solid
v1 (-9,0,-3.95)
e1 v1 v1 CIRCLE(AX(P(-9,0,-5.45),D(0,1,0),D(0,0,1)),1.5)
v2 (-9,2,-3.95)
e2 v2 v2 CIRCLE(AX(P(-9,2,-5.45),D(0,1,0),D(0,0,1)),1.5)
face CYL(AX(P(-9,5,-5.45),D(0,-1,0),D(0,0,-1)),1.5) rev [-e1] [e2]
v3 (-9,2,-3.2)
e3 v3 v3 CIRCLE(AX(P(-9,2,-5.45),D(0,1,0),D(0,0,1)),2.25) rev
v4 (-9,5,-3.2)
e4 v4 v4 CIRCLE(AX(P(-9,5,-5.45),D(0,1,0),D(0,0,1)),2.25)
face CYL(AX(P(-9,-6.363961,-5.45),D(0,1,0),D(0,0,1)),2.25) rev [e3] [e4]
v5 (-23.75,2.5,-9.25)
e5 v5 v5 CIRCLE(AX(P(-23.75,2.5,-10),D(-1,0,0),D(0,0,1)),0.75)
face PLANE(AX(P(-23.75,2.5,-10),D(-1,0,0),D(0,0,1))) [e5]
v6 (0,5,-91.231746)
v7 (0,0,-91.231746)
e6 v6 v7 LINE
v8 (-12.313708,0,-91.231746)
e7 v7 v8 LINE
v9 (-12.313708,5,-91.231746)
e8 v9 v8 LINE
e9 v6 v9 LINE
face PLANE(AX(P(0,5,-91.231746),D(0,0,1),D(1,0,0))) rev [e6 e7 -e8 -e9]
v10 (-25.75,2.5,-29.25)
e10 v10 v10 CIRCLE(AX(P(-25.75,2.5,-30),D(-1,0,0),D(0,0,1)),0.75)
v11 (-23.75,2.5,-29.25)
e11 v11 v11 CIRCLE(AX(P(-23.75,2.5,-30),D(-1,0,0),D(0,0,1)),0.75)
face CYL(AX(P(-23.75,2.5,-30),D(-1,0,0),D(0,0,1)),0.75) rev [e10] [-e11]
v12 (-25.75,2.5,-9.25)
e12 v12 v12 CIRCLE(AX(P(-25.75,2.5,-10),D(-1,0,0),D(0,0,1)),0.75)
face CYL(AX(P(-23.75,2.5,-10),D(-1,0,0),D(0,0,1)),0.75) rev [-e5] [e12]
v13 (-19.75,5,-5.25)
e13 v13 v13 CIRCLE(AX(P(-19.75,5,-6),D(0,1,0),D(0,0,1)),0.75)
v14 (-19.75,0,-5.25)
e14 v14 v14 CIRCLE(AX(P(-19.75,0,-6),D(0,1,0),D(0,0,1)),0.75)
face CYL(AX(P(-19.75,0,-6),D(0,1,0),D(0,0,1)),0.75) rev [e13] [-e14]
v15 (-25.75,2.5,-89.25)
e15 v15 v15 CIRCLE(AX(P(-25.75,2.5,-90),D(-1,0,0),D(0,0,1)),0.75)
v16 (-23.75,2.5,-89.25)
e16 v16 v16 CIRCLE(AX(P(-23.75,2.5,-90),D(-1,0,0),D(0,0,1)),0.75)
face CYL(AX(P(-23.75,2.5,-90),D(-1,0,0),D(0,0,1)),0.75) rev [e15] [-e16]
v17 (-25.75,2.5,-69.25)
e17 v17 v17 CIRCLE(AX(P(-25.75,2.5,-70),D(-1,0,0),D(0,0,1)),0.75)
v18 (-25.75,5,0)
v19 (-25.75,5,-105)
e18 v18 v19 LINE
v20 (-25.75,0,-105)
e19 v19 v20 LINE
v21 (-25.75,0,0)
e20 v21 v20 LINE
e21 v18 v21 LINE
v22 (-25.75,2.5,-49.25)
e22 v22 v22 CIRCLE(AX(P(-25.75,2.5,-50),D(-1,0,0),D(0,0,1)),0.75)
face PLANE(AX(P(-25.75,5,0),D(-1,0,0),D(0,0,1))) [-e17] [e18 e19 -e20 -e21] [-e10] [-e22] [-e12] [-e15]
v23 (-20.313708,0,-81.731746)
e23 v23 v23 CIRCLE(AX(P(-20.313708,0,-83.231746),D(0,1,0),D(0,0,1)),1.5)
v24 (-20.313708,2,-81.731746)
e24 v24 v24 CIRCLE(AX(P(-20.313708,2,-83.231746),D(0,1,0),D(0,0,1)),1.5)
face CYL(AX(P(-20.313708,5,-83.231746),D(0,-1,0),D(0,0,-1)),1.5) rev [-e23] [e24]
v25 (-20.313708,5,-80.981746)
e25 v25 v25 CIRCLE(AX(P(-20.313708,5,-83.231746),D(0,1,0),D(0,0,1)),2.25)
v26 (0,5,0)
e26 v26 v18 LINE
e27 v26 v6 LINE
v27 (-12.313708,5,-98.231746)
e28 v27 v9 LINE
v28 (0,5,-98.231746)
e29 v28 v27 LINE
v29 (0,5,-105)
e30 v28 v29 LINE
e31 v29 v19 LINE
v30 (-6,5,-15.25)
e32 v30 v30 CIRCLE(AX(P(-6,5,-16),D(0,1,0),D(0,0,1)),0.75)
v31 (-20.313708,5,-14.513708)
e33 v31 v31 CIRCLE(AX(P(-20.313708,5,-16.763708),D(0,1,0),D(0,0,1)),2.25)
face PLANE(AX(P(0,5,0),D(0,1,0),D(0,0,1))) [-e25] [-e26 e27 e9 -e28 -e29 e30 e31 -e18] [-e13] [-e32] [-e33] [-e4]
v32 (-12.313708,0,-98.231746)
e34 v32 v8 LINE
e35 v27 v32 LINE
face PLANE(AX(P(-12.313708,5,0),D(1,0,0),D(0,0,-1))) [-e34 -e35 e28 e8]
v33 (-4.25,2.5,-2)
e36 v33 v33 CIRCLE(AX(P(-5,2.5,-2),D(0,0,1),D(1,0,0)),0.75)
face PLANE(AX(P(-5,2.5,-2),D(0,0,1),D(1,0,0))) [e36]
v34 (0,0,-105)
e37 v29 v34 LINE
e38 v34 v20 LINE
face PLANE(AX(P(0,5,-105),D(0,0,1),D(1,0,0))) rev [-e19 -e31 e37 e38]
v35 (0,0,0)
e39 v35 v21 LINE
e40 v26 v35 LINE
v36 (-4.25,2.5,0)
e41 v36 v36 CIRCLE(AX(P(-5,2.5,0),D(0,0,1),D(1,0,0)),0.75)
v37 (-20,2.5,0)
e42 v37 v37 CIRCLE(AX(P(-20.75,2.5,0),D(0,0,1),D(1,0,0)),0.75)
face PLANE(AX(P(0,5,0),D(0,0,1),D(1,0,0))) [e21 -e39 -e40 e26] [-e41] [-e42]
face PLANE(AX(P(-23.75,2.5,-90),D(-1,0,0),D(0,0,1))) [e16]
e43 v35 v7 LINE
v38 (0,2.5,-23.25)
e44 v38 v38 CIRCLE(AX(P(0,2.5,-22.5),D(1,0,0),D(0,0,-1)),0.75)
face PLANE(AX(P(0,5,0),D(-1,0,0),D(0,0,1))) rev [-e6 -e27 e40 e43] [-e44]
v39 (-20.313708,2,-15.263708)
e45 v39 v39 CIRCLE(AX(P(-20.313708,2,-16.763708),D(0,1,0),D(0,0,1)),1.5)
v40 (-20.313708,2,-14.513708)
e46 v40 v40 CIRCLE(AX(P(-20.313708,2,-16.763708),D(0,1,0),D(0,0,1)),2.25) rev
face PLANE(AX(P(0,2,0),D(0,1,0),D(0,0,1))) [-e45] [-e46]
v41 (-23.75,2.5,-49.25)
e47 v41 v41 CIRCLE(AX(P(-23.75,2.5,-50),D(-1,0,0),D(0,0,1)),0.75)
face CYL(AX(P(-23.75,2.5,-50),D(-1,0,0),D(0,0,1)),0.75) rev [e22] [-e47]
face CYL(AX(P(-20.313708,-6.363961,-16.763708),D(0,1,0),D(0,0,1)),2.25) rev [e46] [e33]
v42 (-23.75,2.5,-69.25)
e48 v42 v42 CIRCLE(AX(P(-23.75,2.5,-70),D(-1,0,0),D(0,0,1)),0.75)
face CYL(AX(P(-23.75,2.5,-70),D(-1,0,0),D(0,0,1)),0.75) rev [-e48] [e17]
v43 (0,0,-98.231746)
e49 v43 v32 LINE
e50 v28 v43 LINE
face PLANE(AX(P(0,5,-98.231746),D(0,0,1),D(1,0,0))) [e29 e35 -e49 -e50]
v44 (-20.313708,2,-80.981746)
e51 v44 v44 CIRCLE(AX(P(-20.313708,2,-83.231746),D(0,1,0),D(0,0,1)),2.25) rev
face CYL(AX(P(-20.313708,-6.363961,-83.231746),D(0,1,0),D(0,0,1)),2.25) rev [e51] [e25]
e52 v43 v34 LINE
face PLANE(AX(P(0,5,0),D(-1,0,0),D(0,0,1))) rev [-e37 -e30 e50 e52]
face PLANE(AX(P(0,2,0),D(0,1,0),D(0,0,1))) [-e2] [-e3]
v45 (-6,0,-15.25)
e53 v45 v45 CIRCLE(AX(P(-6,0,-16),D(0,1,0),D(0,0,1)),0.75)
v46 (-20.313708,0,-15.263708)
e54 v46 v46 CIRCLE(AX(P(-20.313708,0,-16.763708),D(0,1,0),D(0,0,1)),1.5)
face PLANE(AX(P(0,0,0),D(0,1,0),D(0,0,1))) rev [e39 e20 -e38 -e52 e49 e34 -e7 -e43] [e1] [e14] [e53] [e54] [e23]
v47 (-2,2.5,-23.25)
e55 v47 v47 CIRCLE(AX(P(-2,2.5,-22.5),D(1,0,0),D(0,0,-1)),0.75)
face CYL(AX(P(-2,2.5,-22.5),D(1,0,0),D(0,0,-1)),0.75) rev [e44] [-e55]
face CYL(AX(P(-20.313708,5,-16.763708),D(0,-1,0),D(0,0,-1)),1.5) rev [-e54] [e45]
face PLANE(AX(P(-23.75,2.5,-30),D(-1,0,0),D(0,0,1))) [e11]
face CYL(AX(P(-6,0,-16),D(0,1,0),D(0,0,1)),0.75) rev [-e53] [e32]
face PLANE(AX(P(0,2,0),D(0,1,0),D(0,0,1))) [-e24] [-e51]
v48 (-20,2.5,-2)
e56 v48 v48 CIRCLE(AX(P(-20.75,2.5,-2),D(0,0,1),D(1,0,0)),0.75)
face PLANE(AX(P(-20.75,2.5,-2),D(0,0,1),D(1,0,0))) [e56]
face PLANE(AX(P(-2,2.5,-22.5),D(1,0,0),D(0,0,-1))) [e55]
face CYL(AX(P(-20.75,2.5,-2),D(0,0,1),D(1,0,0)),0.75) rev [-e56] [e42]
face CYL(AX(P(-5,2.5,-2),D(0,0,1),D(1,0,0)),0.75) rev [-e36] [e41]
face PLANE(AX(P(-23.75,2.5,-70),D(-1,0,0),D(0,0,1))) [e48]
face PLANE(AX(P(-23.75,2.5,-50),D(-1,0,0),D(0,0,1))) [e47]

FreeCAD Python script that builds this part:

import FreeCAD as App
import Part
import Sketcher
from FreeCAD import Vector
Q = App.Units.Quantity


def add_polygon(sketch, points):
    """Adds a closed chain of lines whose ends are joined by coincident constraints."""
    first, n = sketch.GeometryCount, len(points)
    for a, b in zip(points, points[1:] + points[:1]):
        sketch.addGeometry(Part.LineSegment(App.Vector(*a, 0), App.Vector(*b, 0)), False)
    for i in range(n):
        sketch.addConstraint(Sketcher.Constraint("Coincident", first + i, 2, first + (i + 1) % n, 1))

doc = App.newDocument("Part")
body = doc.addObject("PartDesign::Body", "Body")

sketch1 = body.newObject("Sketcher::SketchObject", "Sketch")
sketch1.AttachmentSupport = (doc.getObject("XZ_Plane"), [""])
sketch1.MapMode = "FlatFace"
add_polygon(sketch1, [(-26, 0), (0, 0), (0, -91), (-12, -91), (-12, -98), (0, -98), (0, -105), (-26, -105)])
sketch1.addConstraint([
    Sketcher.Constraint("Horizontal", 0),
    Sketcher.Constraint("Vertical", 1),
    Sketcher.Constraint("Horizontal", 2),
    Sketcher.Constraint("Vertical", 3),
    Sketcher.Constraint("Horizontal", 4),
    Sketcher.Constraint("Vertical", 5),
    Sketcher.Constraint("Horizontal", 6),
    Sketcher.Constraint("Vertical", 7),
    Sketcher.Constraint("Coincident", 0, 2, -1, 1),
    Sketcher.Constraint("PointOnObject", 4, 2, -2),
    Sketcher.Constraint("DistanceY", 3, 2, 3, 1, Q("7 mm")),
    Sketcher.Constraint("DistanceY", 7, 1, 7, 2, Q("105 mm")),
    Sketcher.Constraint("DistanceX", 0, 1, 0, 2, Q("25.75 mm")),
    Sketcher.Constraint("DistanceX", 2, 2, 2, 1, Q("12.313708 mm")),
    Sketcher.Constraint("DistanceY", 1, 2, 1, 1, Q("91.231746 mm")),
])
pad1 = body.newObject("PartDesign::Pad", "Pad")
pad1.Profile = sketch1
pad1.Length = 5
pad1.Reversed = True

sketch2 = body.newObject("Sketcher::SketchObject", "Sketch001")
sketch2.AttachmentSupport = (doc.getObject("XZ_Plane"), [""])
sketch2.MapMode = "FlatFace"
sketch2.addGeometry([
    Part.Circle(Vector(-20.3, -83.2, 0), Vector(0, 0, 1), 1.5),
    Part.Circle(Vector(-20.3, -16.8, 0), Vector(0, 0, 1), 1.5),
    Part.Circle(Vector(-9, -5.5, 0), Vector(0, 0, 1), 1.5),
], False)
sketch2.addConstraint([
    Sketcher.Constraint("Equal", 0, 1),
    Sketcher.Constraint("Equal", 1, 2),
    Sketcher.Constraint("Vertical", 0, 3, 1, 3),
    Sketcher.Constraint("Diameter", 0, Q("3 mm")),
    Sketcher.Constraint("DistanceX", 2, 3, -1, 1, Q("9 mm")),
    Sketcher.Constraint("DistanceY", 2, 3, -1, 1, Q("5.45 mm")),
    Sketcher.Constraint("DistanceX", 0, 3, -1, 1, Q("20.313708 mm")),
    Sketcher.Constraint("DistanceY", 1, 3, -1, 1, Q("16.763708 mm")),
    Sketcher.Constraint("DistanceY", 0, 3, -1, 1, Q("83.231746 mm")),
])
pocket1 = body.newObject("PartDesign::Pocket", "Pocket")
pocket1.Profile = sketch2
pocket1.Type = "ThroughAll"

sketch3 = body.newObject("Sketcher::SketchObject", "Sketch002")
sketch3.AttachmentSupport = (doc.getObject("XZ_Plane"), [""])
sketch3.MapMode = "FlatFace"
sketch3.AttachmentOffset = App.Placement(Vector(0, 0, -5), App.Rotation())
sketch3.addGeometry([
    Part.Circle(Vector(-20.3, -83.2, 0), Vector(0, 0, 1), 2.2),
    Part.Circle(Vector(-9, -5.5, 0), Vector(0, 0, 1), 2.2),
    Part.Circle(Vector(-20.3, -16.8, 0), Vector(0, 0, 1), 2.2),
], False)
sketch3.addConstraint([
    Sketcher.Constraint("Equal", 0, 1),
    Sketcher.Constraint("Equal", 1, 2),
    Sketcher.Constraint("Vertical", 0, 3, 2, 3),
    Sketcher.Constraint("Diameter", 0, Q("4.5 mm")),
    Sketcher.Constraint("DistanceX", 1, 3, -1, 1, Q("9 mm")),
    Sketcher.Constraint("DistanceY", 1, 3, -1, 1, Q("5.45 mm")),
    Sketcher.Constraint("DistanceX", 0, 3, -1, 1, Q("20.313708 mm")),
    Sketcher.Constraint("DistanceY", 2, 3, -1, 1, Q("16.763708 mm")),
    Sketcher.Constraint("DistanceY", 0, 3, -1, 1, Q("83.231746 mm")),
])
pocket2 = body.newObject("PartDesign::Pocket", "Pocket001")
pocket2.Profile = sketch3
pocket2.Length = 3
pocket2.Reversed = True

sketch4 = body.newObject("Sketcher::SketchObject", "Sketch003")
sketch4.AttachmentSupport = (doc.getObject("XY_Plane"), [""])
sketch4.MapMode = "FlatFace"
sketch4.addGeometry([
    Part.Circle(Vector(-20.8, 2.5, 0), Vector(0, 0, 1), 0.8),
    Part.Circle(Vector(-5, 2.5, 0), Vector(0, 0, 1), 0.8),
], False)
sketch4.addConstraint([
    Sketcher.Constraint("Equal", 0, 1),
    Sketcher.Constraint("Horizontal", 0, 3, 1, 3),
    Sketcher.Constraint("Diameter", 0, Q("1.5 mm")),
    Sketcher.Constraint("DistanceX", 1, 3, -1, 1, Q("5 mm")),
    Sketcher.Constraint("DistanceY", -1, 1, 0, 3, Q("2.5 mm")),
    Sketcher.Constraint("DistanceX", 0, 3, -1, 1, Q("20.75 mm")),
])
pocket3 = body.newObject("PartDesign::Pocket", "Pocket002")
pocket3.Profile = sketch4
pocket3.Length = 2

sketch5 = body.newObject("Sketcher::SketchObject", "Sketch004")
sketch5.AttachmentSupport = (doc.getObject("YZ_Plane"), [""])
sketch5.MapMode = "FlatFace"
sketch5.addGeometry(Part.Circle(Vector(2.5, -22.5, 0), Vector(0, 0, 1), 0.8), False)
sketch5.addConstraint([
    Sketcher.Constraint("Diameter", 0, Q("1.5 mm")),
    Sketcher.Constraint("DistanceX", -1, 1, 0, 3, Q("2.5 mm")),
    Sketcher.Constraint("DistanceY", 0, 3, -1, 1, Q("22.5 mm")),
])
pocket4 = body.newObject("PartDesign::Pocket", "Pocket003")
pocket4.Profile = sketch5
pocket4.Length = 2

sketch6 = body.newObject("Sketcher::SketchObject", "Sketch005")
sketch6.AttachmentSupport = (doc.getObject("XZ_Plane"), [""])
sketch6.MapMode = "FlatFace"
sketch6.AttachmentOffset = App.Placement(Vector(0, 0, -5), App.Rotation())
sketch6.addGeometry([
    Part.Circle(Vector(-6, -16, 0), Vector(0, 0, 1), 0.8),
    Part.Circle(Vector(-19.8, -6, 0), Vector(0, 0, 1), 0.8),
], False)
sketch6.addConstraint([
    Sketcher.Constraint("Equal", 0, 1),
    Sketcher.Constraint("Diameter", 0, Q("1.5 mm")),
    Sketcher.Constraint("DistanceX", 0, 3, -1, 1, Q("6 mm")),
    Sketcher.Constraint("DistanceY", 0, 3, -1, 1, Q("16 mm")),
    Sketcher.Constraint("DistanceY", 1, 3, -1, 1, Q("6 mm")),
    Sketcher.Constraint("DistanceX", 1, 3, -1, 1, Q("19.75 mm")),
])
pocket5 = body.newObject("PartDesign::Pocket", "Pocket004")
pocket5.Profile = sketch6
pocket5.Type = "ThroughAll"
pocket5.Reversed = True

sketch7 = body.newObject("Sketcher::SketchObject", "Sketch006")
sketch7.AttachmentSupport = (doc.getObject("YZ_Plane"), [""])
sketch7.MapMode = "FlatFace"
sketch7.AttachmentOffset = App.Placement(Vector(0, 0, -25.75), App.Rotation())
sketch7.addGeometry([
    Part.Circle(Vector(2.5, -10, 0), Vector(0, 0, 1), 0.8),
    Part.Circle(Vector(2.5, -50, 0), Vector(0, 0, 1), 0.8),
    Part.Circle(Vector(2.5, -70, 0), Vector(0, 0, 1), 0.8),
    Part.Circle(Vector(2.5, -90, 0), Vector(0, 0, 1), 0.8),
    Part.Circle(Vector(2.5, -30, 0), Vector(0, 0, 1), 0.8),
], False)
sketch7.addConstraint([
    Sketcher.Constraint("Equal", 0, 1),
    Sketcher.Constraint("Equal", 1, 2),
    Sketcher.Constraint("Equal", 2, 3),
    Sketcher.Constraint("Equal", 3, 4),
    Sketcher.Constraint("Vertical", 0, 3, 1, 3),
    Sketcher.Constraint("Vertical", 1, 3, 2, 3),
    Sketcher.Constraint("Vertical", 2, 3, 3, 3),
    Sketcher.Constraint("Vertical", 3, 3, 4, 3),
    Sketcher.Constraint("Diameter", 0, Q("1.5 mm")),
    Sketcher.Constraint("DistanceY", 0, 3, -1, 1, Q("10 mm")),
    Sketcher.Constraint("DistanceY", 1, 3, -1, 1, Q("50 mm")),
    Sketcher.Constraint("DistanceY", 2, 3, -1, 1, Q("70 mm")),
    Sketcher.Constraint("DistanceY", 3, 3, -1, 1, Q("90 mm")),
    Sketcher.Constraint("DistanceY", 4, 3, -1, 1, Q("30 mm")),
    Sketcher.Constraint("DistanceX", -1, 1, 0, 3, Q("2.5 mm")),
])
pocket6 = body.newObject("PartDesign::Pocket", "Pocket005")
pocket6.Profile = sketch7
pocket6.Length = 2
pocket6.Reversed = True

doc.recompute()
